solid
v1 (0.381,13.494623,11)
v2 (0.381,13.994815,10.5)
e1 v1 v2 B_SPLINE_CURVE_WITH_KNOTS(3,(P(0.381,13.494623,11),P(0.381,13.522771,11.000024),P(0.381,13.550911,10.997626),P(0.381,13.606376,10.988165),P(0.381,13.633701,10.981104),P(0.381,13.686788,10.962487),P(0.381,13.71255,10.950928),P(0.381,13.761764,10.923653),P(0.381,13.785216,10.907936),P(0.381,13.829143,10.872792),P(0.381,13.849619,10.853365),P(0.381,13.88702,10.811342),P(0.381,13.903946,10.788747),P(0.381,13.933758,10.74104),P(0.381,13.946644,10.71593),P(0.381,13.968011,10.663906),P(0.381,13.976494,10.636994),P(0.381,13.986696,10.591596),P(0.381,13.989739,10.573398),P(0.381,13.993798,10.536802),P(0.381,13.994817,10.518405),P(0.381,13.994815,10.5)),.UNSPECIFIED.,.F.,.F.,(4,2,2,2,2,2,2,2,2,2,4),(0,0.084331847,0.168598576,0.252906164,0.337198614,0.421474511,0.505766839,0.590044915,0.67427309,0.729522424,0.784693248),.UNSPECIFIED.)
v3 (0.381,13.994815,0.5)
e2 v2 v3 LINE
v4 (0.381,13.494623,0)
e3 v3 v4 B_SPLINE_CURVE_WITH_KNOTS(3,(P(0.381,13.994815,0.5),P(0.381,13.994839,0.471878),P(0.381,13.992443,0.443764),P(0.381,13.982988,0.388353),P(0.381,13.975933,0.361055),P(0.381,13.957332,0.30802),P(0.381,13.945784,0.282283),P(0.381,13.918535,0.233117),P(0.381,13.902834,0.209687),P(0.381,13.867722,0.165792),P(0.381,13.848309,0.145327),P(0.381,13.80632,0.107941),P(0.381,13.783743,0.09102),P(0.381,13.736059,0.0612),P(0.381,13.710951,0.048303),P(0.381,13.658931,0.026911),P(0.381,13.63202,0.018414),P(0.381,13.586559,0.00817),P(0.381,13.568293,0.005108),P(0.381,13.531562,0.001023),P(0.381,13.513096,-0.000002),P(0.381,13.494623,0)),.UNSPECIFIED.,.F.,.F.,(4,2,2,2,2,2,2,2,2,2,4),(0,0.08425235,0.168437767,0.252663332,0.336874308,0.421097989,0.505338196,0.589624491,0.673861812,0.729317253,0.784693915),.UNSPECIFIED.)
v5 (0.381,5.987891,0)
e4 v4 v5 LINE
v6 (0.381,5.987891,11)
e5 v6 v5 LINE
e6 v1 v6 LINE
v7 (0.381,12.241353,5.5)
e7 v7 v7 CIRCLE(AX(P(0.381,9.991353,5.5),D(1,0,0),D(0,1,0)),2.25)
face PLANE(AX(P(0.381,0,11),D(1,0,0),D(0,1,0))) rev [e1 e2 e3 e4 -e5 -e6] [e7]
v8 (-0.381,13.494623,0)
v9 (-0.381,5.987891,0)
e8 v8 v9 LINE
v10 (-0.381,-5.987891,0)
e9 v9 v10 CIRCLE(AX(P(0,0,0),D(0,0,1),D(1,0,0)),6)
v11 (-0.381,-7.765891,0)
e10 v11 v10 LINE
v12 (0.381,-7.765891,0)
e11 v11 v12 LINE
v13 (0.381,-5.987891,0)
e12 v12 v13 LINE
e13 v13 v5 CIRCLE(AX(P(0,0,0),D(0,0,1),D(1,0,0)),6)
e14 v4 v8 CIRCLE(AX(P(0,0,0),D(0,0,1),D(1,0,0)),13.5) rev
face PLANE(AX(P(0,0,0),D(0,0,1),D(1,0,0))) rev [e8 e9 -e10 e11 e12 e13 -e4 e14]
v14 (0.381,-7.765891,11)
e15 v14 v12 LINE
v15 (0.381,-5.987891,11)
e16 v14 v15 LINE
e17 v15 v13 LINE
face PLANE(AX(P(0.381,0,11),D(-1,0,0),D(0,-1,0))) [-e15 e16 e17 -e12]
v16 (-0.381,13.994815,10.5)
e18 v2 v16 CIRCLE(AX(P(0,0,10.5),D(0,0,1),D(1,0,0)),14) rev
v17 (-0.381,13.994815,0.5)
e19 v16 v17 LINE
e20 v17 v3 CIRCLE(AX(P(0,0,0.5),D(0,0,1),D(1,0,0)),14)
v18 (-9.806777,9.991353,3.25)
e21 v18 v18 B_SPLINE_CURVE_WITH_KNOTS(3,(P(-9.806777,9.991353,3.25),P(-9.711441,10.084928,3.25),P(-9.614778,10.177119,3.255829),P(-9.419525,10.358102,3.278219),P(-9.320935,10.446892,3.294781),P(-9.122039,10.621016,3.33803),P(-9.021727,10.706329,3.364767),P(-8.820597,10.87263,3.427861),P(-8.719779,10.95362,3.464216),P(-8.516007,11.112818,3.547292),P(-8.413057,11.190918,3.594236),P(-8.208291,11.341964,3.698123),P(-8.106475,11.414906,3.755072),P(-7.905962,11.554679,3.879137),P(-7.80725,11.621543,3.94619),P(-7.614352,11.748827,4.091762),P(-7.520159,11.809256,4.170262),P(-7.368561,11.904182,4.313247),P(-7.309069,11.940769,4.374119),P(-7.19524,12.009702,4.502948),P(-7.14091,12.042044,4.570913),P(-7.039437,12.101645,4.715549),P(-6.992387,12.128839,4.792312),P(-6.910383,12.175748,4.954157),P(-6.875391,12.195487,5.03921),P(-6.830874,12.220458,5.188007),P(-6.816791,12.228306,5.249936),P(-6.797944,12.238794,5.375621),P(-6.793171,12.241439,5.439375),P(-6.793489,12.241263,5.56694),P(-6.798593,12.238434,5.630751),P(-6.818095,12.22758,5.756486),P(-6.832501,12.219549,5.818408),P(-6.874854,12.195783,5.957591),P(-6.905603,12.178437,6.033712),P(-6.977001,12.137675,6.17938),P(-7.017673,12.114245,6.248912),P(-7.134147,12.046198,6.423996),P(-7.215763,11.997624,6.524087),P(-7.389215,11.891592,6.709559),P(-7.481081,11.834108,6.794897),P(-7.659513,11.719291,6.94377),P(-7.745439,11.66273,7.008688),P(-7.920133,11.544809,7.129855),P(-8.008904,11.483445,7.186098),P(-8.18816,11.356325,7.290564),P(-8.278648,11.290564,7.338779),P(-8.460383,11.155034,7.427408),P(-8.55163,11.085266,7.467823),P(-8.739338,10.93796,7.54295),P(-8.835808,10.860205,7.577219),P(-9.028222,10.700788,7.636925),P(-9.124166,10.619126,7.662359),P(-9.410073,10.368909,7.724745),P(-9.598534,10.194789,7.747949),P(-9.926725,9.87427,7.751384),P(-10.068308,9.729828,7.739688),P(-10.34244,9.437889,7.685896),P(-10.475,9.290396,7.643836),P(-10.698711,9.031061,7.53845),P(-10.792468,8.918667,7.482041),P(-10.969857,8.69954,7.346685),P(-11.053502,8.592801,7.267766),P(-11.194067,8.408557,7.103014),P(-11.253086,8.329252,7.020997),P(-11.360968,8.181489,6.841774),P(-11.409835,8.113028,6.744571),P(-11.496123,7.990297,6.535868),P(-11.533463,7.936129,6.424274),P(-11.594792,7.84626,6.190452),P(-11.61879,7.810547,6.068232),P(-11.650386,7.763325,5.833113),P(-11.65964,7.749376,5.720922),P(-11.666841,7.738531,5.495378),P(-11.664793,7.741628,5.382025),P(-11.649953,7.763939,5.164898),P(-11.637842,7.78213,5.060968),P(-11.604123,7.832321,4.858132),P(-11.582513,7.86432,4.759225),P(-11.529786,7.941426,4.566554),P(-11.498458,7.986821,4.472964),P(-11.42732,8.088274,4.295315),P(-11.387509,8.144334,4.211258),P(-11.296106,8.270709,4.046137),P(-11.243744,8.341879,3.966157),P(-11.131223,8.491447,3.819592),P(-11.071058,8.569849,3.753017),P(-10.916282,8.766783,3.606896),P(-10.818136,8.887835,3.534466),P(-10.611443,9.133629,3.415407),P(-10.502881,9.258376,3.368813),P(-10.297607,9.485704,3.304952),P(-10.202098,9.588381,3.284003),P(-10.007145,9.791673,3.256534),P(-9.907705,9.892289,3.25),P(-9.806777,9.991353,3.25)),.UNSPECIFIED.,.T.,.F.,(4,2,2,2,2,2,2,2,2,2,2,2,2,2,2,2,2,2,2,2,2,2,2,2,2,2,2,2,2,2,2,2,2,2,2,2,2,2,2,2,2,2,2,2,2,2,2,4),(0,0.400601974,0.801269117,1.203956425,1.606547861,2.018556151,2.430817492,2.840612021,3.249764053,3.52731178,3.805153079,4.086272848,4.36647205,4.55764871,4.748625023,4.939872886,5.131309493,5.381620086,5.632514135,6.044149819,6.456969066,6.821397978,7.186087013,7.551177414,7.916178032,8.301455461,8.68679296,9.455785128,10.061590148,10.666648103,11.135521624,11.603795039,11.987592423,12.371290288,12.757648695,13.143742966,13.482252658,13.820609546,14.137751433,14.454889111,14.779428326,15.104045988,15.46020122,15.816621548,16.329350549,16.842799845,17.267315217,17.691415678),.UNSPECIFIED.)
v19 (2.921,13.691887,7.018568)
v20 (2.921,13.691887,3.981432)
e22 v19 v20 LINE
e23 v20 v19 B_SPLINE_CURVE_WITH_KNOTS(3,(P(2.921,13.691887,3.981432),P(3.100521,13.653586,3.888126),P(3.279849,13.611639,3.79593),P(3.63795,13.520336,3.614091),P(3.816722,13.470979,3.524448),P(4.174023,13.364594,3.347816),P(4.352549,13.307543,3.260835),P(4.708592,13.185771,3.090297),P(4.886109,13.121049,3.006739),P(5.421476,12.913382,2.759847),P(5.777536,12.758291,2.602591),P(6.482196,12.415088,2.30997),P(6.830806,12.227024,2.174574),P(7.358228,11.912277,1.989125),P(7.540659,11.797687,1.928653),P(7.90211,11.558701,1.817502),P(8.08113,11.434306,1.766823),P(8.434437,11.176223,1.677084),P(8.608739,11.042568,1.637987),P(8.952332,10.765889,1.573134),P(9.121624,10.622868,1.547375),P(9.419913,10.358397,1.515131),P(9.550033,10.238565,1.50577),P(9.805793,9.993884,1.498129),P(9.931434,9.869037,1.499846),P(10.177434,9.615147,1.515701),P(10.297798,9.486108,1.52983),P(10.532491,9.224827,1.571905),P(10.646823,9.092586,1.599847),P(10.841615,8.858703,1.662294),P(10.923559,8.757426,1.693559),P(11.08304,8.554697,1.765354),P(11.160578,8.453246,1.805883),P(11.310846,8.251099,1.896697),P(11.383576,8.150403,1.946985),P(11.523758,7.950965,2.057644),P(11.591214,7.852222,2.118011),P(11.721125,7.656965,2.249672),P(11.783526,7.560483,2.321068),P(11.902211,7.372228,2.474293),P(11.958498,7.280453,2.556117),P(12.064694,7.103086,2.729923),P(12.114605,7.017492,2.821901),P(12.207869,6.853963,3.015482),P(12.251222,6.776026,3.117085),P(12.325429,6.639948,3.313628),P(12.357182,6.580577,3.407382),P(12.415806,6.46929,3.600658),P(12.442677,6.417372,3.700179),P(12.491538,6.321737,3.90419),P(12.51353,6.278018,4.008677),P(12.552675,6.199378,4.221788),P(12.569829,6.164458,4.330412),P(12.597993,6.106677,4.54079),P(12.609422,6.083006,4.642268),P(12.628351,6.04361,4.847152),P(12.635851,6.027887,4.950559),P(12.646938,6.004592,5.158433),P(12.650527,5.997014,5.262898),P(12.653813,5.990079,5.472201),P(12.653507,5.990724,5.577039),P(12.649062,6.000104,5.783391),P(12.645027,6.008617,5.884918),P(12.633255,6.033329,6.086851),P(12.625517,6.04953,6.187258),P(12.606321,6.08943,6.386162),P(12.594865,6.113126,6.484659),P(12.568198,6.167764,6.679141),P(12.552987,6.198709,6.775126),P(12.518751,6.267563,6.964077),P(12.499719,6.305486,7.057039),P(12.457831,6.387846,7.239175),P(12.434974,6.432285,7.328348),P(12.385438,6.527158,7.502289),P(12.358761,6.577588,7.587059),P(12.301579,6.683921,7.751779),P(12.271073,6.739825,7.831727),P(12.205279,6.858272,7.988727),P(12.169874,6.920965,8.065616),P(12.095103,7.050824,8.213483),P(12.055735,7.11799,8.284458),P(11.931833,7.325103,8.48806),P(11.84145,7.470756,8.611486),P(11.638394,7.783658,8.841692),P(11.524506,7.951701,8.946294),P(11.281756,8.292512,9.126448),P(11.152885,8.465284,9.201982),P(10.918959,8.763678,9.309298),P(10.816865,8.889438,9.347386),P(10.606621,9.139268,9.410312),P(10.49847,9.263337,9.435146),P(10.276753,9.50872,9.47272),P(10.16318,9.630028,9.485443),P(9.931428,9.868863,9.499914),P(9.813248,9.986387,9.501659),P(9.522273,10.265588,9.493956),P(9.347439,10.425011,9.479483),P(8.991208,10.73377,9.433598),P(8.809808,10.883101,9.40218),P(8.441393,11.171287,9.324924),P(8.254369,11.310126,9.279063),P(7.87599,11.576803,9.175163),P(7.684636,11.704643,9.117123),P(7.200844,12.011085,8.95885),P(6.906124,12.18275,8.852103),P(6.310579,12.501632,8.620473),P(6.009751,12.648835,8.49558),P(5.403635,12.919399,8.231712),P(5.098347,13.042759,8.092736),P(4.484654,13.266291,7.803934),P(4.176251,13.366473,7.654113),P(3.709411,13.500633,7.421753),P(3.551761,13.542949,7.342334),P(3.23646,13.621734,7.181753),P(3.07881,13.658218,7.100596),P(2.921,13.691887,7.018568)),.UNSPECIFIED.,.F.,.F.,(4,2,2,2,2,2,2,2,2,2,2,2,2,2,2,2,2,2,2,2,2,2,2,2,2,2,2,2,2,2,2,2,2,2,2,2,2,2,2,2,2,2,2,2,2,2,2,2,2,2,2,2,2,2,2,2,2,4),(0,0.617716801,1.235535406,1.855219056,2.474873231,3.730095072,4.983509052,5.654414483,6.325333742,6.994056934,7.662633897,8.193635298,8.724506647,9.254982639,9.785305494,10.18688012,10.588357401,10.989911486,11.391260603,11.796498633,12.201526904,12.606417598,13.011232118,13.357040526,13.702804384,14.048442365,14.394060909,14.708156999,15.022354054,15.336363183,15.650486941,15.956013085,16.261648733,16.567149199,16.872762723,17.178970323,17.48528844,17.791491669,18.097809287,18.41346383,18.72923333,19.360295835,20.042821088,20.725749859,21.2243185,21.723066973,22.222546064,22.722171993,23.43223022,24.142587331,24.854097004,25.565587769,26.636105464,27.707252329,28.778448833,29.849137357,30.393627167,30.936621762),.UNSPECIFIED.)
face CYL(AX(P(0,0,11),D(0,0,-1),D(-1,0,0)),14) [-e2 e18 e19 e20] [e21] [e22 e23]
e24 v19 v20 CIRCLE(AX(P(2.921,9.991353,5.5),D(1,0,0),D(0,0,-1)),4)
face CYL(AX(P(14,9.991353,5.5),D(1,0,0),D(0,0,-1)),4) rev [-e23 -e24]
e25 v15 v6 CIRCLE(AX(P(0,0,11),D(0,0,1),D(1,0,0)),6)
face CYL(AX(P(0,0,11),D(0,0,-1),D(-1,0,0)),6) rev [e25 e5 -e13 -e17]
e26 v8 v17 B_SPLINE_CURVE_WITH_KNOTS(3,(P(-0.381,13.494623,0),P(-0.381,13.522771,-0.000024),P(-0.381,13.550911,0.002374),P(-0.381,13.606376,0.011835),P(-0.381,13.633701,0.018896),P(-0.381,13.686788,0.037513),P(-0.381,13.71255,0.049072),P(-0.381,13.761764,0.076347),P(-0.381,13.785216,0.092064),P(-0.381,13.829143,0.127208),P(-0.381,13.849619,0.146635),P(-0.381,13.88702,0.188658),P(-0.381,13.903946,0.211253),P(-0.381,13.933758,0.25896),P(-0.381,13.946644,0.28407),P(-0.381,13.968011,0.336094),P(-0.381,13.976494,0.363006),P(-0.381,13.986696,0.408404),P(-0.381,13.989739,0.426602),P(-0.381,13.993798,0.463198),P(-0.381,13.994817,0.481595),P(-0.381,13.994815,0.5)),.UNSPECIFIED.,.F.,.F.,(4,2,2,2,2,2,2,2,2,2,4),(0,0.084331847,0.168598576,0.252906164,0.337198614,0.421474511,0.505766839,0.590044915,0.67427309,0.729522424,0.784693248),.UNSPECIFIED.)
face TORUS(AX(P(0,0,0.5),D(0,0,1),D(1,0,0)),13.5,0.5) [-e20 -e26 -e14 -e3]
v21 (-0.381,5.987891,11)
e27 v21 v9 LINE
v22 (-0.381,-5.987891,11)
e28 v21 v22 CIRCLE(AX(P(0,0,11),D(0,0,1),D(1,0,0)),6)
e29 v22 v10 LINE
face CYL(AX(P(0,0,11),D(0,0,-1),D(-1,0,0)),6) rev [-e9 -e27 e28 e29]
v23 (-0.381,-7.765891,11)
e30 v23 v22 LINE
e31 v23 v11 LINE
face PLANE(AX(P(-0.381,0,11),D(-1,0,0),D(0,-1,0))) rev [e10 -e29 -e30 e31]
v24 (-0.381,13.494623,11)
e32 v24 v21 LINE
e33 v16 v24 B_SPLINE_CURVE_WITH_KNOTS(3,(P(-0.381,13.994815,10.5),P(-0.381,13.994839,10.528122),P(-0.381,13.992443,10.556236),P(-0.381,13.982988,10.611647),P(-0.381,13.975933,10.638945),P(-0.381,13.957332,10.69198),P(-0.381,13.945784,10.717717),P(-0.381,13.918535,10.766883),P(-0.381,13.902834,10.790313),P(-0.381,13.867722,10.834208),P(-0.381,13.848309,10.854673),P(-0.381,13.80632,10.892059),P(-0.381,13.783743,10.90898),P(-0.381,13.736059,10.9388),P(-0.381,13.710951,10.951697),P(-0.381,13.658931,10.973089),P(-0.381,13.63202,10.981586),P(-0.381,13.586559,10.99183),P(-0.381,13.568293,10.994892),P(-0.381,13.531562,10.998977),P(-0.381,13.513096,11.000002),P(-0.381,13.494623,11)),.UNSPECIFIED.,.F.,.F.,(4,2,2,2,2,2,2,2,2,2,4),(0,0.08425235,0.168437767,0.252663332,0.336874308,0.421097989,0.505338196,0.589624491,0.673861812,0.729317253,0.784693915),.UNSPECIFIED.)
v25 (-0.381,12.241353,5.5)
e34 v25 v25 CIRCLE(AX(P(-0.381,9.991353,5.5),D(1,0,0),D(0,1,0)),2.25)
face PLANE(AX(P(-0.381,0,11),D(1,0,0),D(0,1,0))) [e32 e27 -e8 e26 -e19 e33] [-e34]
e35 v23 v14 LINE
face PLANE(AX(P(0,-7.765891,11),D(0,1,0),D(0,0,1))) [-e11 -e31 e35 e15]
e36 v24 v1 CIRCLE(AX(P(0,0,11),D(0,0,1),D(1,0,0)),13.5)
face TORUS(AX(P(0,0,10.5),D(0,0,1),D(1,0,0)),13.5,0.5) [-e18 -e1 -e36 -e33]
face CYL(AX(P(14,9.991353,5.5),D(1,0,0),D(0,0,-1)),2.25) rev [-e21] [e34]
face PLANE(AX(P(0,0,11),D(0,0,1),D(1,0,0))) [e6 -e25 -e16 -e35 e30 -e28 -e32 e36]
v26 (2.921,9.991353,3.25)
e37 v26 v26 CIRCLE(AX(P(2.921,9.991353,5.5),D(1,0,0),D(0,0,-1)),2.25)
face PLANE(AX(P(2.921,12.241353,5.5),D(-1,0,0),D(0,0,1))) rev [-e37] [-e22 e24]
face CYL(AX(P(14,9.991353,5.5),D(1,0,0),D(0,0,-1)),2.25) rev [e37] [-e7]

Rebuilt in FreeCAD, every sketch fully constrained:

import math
import FreeCAD as App
import Part
import Sketcher

V = App.Vector


def edges_at(feature, points):
    """Names of the edges that pass closest to the given points."""
    edges = feature.Shape.Edges
    near = lambda p: min(range(len(edges)), key=lambda i: edges[i].distToShape(Part.Vertex(*p))[0])
    return sorted({f"Edge{near(p) + 1}" for p in points})

doc = App.newDocument("Part")
body = doc.addObject("PartDesign::Body", "Body")

sketch1 = body.newObject("Sketcher::SketchObject", "Sketch")
sketch1.AttachmentSupport = (doc.getObject("XY_Plane"), [""])
sketch1.MapMode = "FlatFace"
sketch1.addGeometry([
    Part.ArcOfCircle(Part.Circle(V(0, 0, 0), V(0, 0, 1), 6), math.radians(30), math.radians(86.359268)),
    Part.ArcOfCircle(Part.Circle(V(0, 0, 0), V(0, 0, 1), 6), math.radians(0), math.radians(30)),
    Part.ArcOfCircle(Part.Circle(V(0, 0, 0), V(0, 0, 1), 6), math.radians(-30), math.radians(0)),
    Part.ArcOfCircle(Part.Circle(V(0, 0, 0), V(0, 0, 1), 6), math.radians(-86.359268), math.radians(-30)),
    Part.LineSegment(V(0.381, -5.987891, 0), V(0.381, -7.765891, 0)),
    Part.LineSegment(V(0.381, -7.765891, 0), V(-0.381, -7.765891, 0)),
    Part.LineSegment(V(-0.381, -7.765891, 0), V(-0.381, -5.987891, 0)),
    Part.ArcOfCircle(Part.Circle(V(0, 0, 0), V(0, 0, 1), 6), math.radians(93.640732), math.radians(266.359268)),
    Part.LineSegment(V(-0.381, 5.987891, 0), V(-0.381, 13.994815, 0)),
    Part.ArcOfCircle(Part.Circle(V(0, 0, 0), V(0, 0, 1), 14), math.radians(91.559456), math.radians(360)),
    Part.ArcOfCircle(Part.Circle(V(0, 0, 0), V(0, 0, 1), 14), math.radians(0), math.radians(88.440544)),
    Part.LineSegment(V(0.381, 13.994815, 0), V(0.381, 5.987891, 0)),
], False)
sketch1.addConstraint([
    Sketcher.Constraint("Tangent", 0, 1, 1, 2),
    Sketcher.Constraint("Tangent", 1, 1, 2, 2),
    Sketcher.Constraint("Tangent", 2, 1, 3, 2),
    Sketcher.Constraint("Coincident", 3, 1, 4, 1),
    Sketcher.Constraint("Coincident", 4, 2, 5, 1),
    Sketcher.Constraint("Coincident", 5, 2, 6, 1),
    Sketcher.Constraint("Coincident", 6, 2, 7, 2),
    Sketcher.Constraint("Coincident", 7, 1, 8, 1),
    Sketcher.Constraint("Coincident", 8, 2, 9, 1),
    Sketcher.Constraint("Tangent", 9, 2, 10, 1),
    Sketcher.Constraint("Coincident", 10, 2, 11, 1),
    Sketcher.Constraint("Coincident", 11, 2, 0, 2),
    Sketcher.Constraint("Vertical", 4),
    Sketcher.Constraint("Horizontal", 5),
    Sketcher.Constraint("Vertical", 6),
    Sketcher.Constraint("Vertical", 8),
    Sketcher.Constraint("Vertical", 11),
    Sketcher.Constraint("Coincident", 0, 3, -1, 1),
    Sketcher.Constraint("Coincident", 2, 3, -1, 1),
    Sketcher.Constraint("Coincident", 7, 3, -1, 1),
    Sketcher.Constraint("Coincident", 9, 3, -1, 1),
    Sketcher.Constraint("Equal", 2, 3),
    Sketcher.Constraint("Equal", 3, 7),
    Sketcher.Constraint("Equal", 9, 10),
    Sketcher.Constraint("PointOnObject", 1, 1, -1),
    Sketcher.Constraint("PointOnObject", 9, 2, -1),
    Sketcher.Constraint("Horizontal", 3, 1, 6, 2),
    Sketcher.Constraint("Horizontal", 8, 2, 10, 2),
    Sketcher.Constraint("Vertical", 0, 1, 2, 1),
    Sketcher.Constraint("Vertical", 6, 2, 7, 1),
    Sketcher.Constraint("Radius", 0, 6.0),
    Sketcher.Constraint("Radius", 9, 14.0),
    Sketcher.Constraint("DistanceY", -1, 1, 0, 1, 3.0),
    Sketcher.Constraint("DistanceX", 5, 2, 5, 1, 0.762),
    Sketcher.Constraint("DistanceY", 4, 2, 4, 1, 1.778),
])
pad1 = body.newObject("PartDesign::Pad", "Pad")
pad1.Profile = sketch1
pad1.Length = 11

sketch2 = body.newObject("Sketcher::SketchObject", "Sketch001")
sketch2.AttachmentSupport = (doc.getObject("YZ_Plane"), [""])
sketch2.MapMode = "FlatFace"
sketch2.AttachmentOffset = App.Placement(V(0, 0, 14), App.Rotation())
sketch2.addGeometry(Part.Circle(V(9.991353, 5.5, 0), V(0, 0, 1), 2.25), False)
sketch2.addConstraint([
    Sketcher.Constraint("Diameter", 0, 4.5),
    Sketcher.Constraint("DistanceY", -1, 1, 0, 3, 5.5),
    Sketcher.Constraint("DistanceX", -1, 1, 0, 3, 9.991353),
])
doc.recompute()
hole = body.newObject("PartDesign::Hole", "Hole")
hole.Profile = sketch2
hole.ThreadType = "None"
hole.Diameter = 4.5
hole.DepthType = "ThroughAll"
hole.HoleCutType = "Counterbore"
hole.HoleCutDiameter = 8
hole.HoleCutDepth = 11.079
doc.recompute()

fillet = body.newObject("PartDesign::Fillet", "Fillet")
fillet.Base = (hole, edges_at(hole, [(-9.764, -10.033, 11), (-9.764, -10.033, 0)]))
fillet.Radius = 0.5

doc.recompute()
